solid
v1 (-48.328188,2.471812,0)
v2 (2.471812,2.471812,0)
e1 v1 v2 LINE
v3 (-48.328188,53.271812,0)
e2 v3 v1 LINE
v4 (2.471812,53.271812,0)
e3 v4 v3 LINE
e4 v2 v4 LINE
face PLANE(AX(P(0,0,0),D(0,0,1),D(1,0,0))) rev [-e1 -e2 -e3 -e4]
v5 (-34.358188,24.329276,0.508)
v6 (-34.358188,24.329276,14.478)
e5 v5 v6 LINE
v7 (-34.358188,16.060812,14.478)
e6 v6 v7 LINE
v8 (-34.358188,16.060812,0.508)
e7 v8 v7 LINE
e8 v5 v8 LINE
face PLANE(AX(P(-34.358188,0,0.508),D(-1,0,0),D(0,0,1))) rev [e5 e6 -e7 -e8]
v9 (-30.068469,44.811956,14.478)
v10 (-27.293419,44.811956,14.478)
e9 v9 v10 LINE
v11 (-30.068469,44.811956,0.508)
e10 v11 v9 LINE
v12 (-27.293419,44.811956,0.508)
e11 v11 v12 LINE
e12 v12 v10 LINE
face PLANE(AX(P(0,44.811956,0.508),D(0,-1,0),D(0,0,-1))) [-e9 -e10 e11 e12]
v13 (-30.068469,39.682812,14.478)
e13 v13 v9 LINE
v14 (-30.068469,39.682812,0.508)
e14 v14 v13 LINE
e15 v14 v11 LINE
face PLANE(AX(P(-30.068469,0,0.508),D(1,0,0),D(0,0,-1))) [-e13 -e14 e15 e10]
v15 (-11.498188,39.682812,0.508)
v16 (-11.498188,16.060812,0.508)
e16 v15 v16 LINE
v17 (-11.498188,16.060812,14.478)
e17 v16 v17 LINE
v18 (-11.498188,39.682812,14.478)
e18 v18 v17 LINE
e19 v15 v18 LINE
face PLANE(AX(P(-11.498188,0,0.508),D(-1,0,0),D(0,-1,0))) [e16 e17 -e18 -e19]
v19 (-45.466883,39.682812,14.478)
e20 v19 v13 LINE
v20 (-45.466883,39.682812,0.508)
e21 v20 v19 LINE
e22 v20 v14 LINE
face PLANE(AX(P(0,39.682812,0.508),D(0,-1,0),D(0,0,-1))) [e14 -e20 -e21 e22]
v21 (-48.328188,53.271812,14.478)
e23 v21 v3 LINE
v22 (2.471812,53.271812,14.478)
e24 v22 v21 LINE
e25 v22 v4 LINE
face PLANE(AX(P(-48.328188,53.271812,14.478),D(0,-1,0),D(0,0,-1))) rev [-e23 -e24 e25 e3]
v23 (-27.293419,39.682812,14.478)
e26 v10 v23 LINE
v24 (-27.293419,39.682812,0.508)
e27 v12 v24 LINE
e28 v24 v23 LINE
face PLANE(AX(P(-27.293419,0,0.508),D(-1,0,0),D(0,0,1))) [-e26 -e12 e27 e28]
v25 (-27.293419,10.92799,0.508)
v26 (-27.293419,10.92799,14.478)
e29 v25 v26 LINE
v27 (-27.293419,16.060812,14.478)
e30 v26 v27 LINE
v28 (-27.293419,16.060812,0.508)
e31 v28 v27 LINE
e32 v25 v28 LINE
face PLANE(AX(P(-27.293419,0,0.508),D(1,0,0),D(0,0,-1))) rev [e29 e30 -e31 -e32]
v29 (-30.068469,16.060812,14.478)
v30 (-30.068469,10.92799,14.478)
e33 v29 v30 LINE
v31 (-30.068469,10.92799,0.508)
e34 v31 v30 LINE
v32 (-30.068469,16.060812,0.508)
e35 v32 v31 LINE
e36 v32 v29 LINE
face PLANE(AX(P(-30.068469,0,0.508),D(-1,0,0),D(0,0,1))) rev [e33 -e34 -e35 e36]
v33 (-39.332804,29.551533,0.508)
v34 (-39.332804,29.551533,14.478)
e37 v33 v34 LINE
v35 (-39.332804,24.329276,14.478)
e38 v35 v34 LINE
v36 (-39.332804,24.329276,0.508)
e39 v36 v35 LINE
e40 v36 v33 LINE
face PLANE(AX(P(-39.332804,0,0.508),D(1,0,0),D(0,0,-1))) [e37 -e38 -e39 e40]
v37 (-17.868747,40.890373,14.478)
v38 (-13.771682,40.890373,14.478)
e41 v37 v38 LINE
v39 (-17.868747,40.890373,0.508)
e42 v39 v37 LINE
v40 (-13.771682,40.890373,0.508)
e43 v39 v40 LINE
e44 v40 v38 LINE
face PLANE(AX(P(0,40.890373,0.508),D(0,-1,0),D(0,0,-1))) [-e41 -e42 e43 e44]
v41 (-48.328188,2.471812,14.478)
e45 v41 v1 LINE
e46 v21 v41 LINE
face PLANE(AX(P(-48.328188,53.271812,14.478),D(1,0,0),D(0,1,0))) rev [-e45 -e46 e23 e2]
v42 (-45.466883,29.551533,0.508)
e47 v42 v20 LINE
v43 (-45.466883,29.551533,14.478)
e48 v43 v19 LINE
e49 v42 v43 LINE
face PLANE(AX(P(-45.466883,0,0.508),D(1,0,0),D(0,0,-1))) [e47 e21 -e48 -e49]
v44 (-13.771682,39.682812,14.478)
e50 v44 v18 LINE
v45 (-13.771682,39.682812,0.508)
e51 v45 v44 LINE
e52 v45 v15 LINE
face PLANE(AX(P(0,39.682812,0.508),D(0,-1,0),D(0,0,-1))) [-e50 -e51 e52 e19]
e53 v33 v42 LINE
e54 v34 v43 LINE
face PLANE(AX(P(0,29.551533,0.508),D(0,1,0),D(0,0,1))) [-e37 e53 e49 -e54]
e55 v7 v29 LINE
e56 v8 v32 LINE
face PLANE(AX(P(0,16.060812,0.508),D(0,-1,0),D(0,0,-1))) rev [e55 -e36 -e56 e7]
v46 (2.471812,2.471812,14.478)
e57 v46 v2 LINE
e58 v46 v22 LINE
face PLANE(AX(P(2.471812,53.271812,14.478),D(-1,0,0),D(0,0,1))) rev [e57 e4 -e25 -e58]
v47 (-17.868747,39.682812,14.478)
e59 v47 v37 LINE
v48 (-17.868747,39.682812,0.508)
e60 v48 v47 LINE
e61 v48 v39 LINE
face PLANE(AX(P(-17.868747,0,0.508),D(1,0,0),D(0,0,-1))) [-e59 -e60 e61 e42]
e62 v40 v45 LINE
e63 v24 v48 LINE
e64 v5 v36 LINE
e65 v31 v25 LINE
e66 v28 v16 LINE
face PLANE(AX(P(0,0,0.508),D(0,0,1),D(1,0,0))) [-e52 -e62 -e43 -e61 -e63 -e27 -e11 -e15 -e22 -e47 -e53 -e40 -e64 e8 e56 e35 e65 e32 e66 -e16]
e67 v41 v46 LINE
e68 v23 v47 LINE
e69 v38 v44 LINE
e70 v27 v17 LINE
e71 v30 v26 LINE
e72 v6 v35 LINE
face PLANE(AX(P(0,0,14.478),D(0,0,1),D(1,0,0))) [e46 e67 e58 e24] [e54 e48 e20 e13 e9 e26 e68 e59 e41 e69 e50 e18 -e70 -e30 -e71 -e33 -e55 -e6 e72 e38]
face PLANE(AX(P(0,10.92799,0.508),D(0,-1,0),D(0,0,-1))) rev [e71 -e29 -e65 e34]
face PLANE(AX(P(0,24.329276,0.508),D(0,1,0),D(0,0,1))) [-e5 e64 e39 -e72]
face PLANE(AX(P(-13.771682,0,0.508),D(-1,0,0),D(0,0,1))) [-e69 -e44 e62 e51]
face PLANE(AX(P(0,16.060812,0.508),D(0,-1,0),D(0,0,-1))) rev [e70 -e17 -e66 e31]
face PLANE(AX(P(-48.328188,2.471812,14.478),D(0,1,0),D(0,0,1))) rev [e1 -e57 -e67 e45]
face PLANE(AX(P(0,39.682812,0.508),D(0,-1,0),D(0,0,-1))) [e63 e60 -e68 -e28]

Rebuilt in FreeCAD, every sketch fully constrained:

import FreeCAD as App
import Part
import Sketcher
Q = App.Units.Quantity


def add_polygon(sketch, points):
    """Adds a closed chain of lines whose ends are joined by coincident constraints."""
    first, n = sketch.GeometryCount, len(points)
    for a, b in zip(points, points[1:] + points[:1]):
        sketch.addGeometry(Part.LineSegment(App.Vector(*a, 0), App.Vector(*b, 0)), False)
    for i in range(n):
        sketch.addConstraint(Sketcher.Constraint("Coincident", first + i, 2, first + (i + 1) % n, 1))

doc = App.newDocument("Part")
body = doc.addObject("PartDesign::Body", "Body")

sketch1 = body.newObject("Sketcher::SketchObject", "Sketch")
sketch1.AttachmentSupport = (doc.getObject("XY_Plane"), [""])
sketch1.MapMode = "FlatFace"
add_polygon(sketch1, [(-48, 53), (-48, 2), (2, 2), (2, 53)])
sketch1.addConstraint([
    Sketcher.Constraint("Vertical", 0),
    Sketcher.Constraint("Horizontal", 1),
    Sketcher.Constraint("Vertical", 2),
    Sketcher.Constraint("Horizontal", 3),
    Sketcher.Constraint("Equal", 3, 0),
    Sketcher.Constraint("DistanceX", 1, 1, 1, 2, Q("2 in")),
    Sketcher.Constraint("DistanceX", 0, 2, -1, 1, Q("48.328188 mm")),
    Sketcher.Constraint("DistanceY", -1, 1, 0, 2, Q("2.471812 mm")),
])
pad1 = body.newObject("PartDesign::Pad", "Pad")
pad1.Profile = sketch1
pad1.Length = Q("0.57 in")

sketch2 = body.newObject("Sketcher::SketchObject", "Sketch001")
sketch2.AttachmentSupport = (doc.getObject("XY_Plane"), [""])
sketch2.MapMode = "FlatFace"
sketch2.AttachmentOffset = App.Placement(App.Vector(0, 0, 0.57 * 25.4), App.Rotation())
add_polygon(sketch2, [(-45.5, 39.7), (-45.5, 29.6), (-39.3, 29.6), (-39.3, 27.9), (-39.3, 24.3), (-34.4, 24.3), (-34.4, 16.1), (-30.1, 16.1), (-30.1, 10.9), (-27.3, 10.9), (-27.3, 16.1), (-11.5, 16.1), (-11.5, 39.7), (-13.8, 39.7), (-13.8, 40.9), (-17.9, 40.9), (-17.9, 39.7), (-22.9, 39.7), (-27.3, 39.7), (-27.3, 44.8), (-30.1, 44.8), (-30.1, 39.7), (-39.3, 39.7)])
sketch2.addConstraint([
    Sketcher.Constraint("Vertical", 0),
    Sketcher.Constraint("Horizontal", 1),
    Sketcher.Constraint("Vertical", 2),
    Sketcher.Constraint("Vertical", 3),
    Sketcher.Constraint("Horizontal", 4),
    Sketcher.Constraint("Vertical", 5),
    Sketcher.Constraint("Horizontal", 6),
    Sketcher.Constraint("Vertical", 7),
    Sketcher.Constraint("Horizontal", 8),
    Sketcher.Constraint("Vertical", 9),
    Sketcher.Constraint("Horizontal", 10),
    Sketcher.Constraint("Vertical", 11),
    Sketcher.Constraint("Horizontal", 12),
    Sketcher.Constraint("Vertical", 13),
    Sketcher.Constraint("Horizontal", 14),
    Sketcher.Constraint("Vertical", 15),
    Sketcher.Constraint("Horizontal", 16),
    Sketcher.Constraint("Horizontal", 17),
    Sketcher.Constraint("Vertical", 18),
    Sketcher.Constraint("Horizontal", 19),
    Sketcher.Constraint("Vertical", 20),
    Sketcher.Constraint("Horizontal", 21),
    Sketcher.Constraint("Horizontal", 22),
    Sketcher.Constraint("Horizontal", 6, 2, 9, 2),
    Sketcher.Constraint("Horizontal", 12, 2, 15, 2),
    Sketcher.Constraint("Horizontal", 17, 2, 20, 2),
    Sketcher.Constraint("Vertical", 9, 2, 17, 2),
    Sketcher.Constraint("Vertical", 7, 2, 19, 2),
    Sketcher.Constraint("Vertical", 3, 2, 21, 2),
    Sketcher.Constraint("DistanceY", 11, 1, 11, 2, Q("0.93 in")),
    Sketcher.Constraint("DistanceX", 5, 2, 10, 2, Q("0.9 in")),
    Sketcher.Constraint("DistanceX", 16, 2, 11, 2, Q("0.45 in")),
    Sketcher.Constraint("DistanceY", 5, 2, 2, 2, Q("0.465 in")),
    Sketcher.Constraint("DistanceX", 1, 1, 1, 2, Q("6.134079 mm")),
    Sketcher.Constraint("DistanceX", 6, 1, 6, 2, Q("4.289719 mm")),
    Sketcher.Constraint("DistanceX", 8, 1, 8, 2, Q("2.77505 mm")),
    Sketcher.Constraint("DistanceX", 16, 2, 16, 1, Q("5.059441 mm")),
    Sketcher.Constraint("DistanceY", 0, 2, 0, 1, Q("10.131279 mm")),
    Sketcher.Constraint("DistanceY", 13, 1, 13, 2, Q("1.207561 mm")),
    Sketcher.Constraint("DistanceX", 4, 1, 4, 2, Q("4.974616 mm")),
    Sketcher.Constraint("DistanceX", 12, 2, 12, 1, Q("2.273494 mm")),
    Sketcher.Constraint("DistanceY", 3, 2, 3, 1, Q("3.542536 mm")),
    Sketcher.Constraint("DistanceY", 7, 2, 7, 1, Q("5.132822 mm")),
    Sketcher.Constraint("DistanceY", 18, 1, 18, 2, Q("5.129144 mm")),
    Sketcher.Constraint("DistanceX", 6, 2, -1, 1, Q("30.068469 mm")),
    Sketcher.Constraint("DistanceY", -1, 1, 7, 2, Q("10.92799 mm")),
])
pocket1 = body.newObject("PartDesign::Pocket", "Pocket")
pocket1.Profile = sketch2
pocket1.Length = Q("0.55 in")

doc.recompute()
